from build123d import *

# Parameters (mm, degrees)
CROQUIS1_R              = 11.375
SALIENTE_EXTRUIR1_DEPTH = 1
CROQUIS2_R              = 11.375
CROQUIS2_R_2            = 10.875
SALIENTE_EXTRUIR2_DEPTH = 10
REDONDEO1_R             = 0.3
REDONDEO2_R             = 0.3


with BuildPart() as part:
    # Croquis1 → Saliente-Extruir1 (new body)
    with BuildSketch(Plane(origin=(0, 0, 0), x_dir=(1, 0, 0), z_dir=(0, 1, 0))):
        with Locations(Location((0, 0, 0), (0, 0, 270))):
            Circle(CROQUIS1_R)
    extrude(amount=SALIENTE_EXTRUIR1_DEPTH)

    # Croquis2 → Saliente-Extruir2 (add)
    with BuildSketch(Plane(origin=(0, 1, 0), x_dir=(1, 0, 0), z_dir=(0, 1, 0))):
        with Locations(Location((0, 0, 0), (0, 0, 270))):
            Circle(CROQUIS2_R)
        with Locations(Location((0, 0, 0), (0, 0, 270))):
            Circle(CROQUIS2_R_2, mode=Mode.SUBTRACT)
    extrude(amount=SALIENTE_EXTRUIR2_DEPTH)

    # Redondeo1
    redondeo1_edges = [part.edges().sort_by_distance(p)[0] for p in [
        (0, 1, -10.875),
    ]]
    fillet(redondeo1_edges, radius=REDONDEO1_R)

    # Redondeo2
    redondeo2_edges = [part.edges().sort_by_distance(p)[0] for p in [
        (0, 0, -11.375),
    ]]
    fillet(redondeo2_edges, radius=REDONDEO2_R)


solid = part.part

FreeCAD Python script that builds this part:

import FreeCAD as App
import Part
import Sketcher
from FreeCAD import Vector


def edges_at(feature, points):
    """Names of the edges that pass closest to the given points."""
    edges = feature.Shape.Edges
    near = lambda p: min(range(len(edges)), key=lambda i: edges[i].distToShape(Part.Vertex(*p))[0])
    return sorted({f"Edge{near(p) + 1}" for p in points})

doc = App.newDocument("Part")
params = doc.addObject("Spreadsheet::Sheet", "Params")
for row, (alias, value) in enumerate([
    ("sketch1_diameter", "22.75 mm"),
    ("pad1_length", "1 mm"),
    ("sketch2_diameter", "22.75 mm"),
    ("sketch2_diameter2", "21.75 mm"),
    ("pad2_length", "10 mm"),
    ("fillet_radius", "0.3 mm"),
    ("fillet2_radius", "0.3 mm"),
], start=1):
    params.set(f"A{row}", alias)
    params.set(f"B{row}", "=" + value)
    params.setAlias(f"B{row}", alias)

body = doc.addObject("PartDesign::Body", "Body")

# Sketch on XZ plane
sketch1 = doc.addObject("Sketcher::SketchObject", "Sketch")
body.addObject(sketch1)
sketch1.AttachmentSupport = (doc.XZ_Plane, [""])
sketch1.MapMode = "FlatFace"
sketch1.addGeometry(Part.Circle(Vector(0, 0, 0), Vector(0, 0, 1), 11), False)
sketch1.addConstraint(Sketcher.Constraint("Coincident", 0, 3, -1, 1))
sketch1.addConstraint(Sketcher.Constraint("Diameter", 0, 22.75))
sketch1.setExpression("Constraints[1]", "Params.sketch1_diameter")
pad1 = doc.addObject("PartDesign::Pad", "Pad")
body.addObject(pad1)
pad1.Profile = sketch1
pad1.setExpression("Length", "Params.pad1_length")
pad1.Reversed = True

# Sketch on XZ plane
sketch2 = doc.addObject("Sketcher::SketchObject", "Sketch001")
body.addObject(sketch2)
sketch2.AttachmentSupport = (doc.XZ_Plane, [""])
sketch2.MapMode = "FlatFace"
sketch2.AttachmentOffset = App.Placement(Vector(0, 0, -1), App.Rotation())
sketch2.addGeometry(Part.Circle(Vector(0, 0, 0), Vector(0, 0, 1), 11), False)
sketch2.addGeometry(Part.Circle(Vector(0, 0, 0), Vector(0, 0, 1), 11), False)
sketch2.addConstraint(Sketcher.Constraint("Coincident", 0, 3, -1, 1))
sketch2.addConstraint(Sketcher.Constraint("Coincident", 1, 3, -1, 1))
sketch2.addConstraint(Sketcher.Constraint("Diameter", 0, 22.75))
sketch2.addConstraint(Sketcher.Constraint("Diameter", 1, 21.75))
sketch2.setExpression("Constraints[2]", "Params.sketch2_diameter")
sketch2.setExpression("Constraints[3]", "Params.sketch2_diameter2")
pad2 = doc.addObject("PartDesign::Pad", "Pad001")
body.addObject(pad2)
pad2.Profile = sketch2
pad2.setExpression("Length", "Params.pad2_length")
pad2.Reversed = True
doc.recompute()

fillet = doc.addObject("PartDesign::Fillet", "Fillet")
body.addObject(fillet)
fillet.Base = (pad2, edges_at(pad2, [(0, 1, -10.875)]))
fillet.setExpression("Radius", "Params.fillet_radius")
doc.recompute()

fillet2 = doc.addObject("PartDesign::Fillet", "Fillet001")
body.addObject(fillet2)
fillet2.Base = (fillet, edges_at(fillet, [(0, 0, -11.375)]))
fillet2.setExpression("Radius", "Params.fillet2_radius")

doc.recompute()
